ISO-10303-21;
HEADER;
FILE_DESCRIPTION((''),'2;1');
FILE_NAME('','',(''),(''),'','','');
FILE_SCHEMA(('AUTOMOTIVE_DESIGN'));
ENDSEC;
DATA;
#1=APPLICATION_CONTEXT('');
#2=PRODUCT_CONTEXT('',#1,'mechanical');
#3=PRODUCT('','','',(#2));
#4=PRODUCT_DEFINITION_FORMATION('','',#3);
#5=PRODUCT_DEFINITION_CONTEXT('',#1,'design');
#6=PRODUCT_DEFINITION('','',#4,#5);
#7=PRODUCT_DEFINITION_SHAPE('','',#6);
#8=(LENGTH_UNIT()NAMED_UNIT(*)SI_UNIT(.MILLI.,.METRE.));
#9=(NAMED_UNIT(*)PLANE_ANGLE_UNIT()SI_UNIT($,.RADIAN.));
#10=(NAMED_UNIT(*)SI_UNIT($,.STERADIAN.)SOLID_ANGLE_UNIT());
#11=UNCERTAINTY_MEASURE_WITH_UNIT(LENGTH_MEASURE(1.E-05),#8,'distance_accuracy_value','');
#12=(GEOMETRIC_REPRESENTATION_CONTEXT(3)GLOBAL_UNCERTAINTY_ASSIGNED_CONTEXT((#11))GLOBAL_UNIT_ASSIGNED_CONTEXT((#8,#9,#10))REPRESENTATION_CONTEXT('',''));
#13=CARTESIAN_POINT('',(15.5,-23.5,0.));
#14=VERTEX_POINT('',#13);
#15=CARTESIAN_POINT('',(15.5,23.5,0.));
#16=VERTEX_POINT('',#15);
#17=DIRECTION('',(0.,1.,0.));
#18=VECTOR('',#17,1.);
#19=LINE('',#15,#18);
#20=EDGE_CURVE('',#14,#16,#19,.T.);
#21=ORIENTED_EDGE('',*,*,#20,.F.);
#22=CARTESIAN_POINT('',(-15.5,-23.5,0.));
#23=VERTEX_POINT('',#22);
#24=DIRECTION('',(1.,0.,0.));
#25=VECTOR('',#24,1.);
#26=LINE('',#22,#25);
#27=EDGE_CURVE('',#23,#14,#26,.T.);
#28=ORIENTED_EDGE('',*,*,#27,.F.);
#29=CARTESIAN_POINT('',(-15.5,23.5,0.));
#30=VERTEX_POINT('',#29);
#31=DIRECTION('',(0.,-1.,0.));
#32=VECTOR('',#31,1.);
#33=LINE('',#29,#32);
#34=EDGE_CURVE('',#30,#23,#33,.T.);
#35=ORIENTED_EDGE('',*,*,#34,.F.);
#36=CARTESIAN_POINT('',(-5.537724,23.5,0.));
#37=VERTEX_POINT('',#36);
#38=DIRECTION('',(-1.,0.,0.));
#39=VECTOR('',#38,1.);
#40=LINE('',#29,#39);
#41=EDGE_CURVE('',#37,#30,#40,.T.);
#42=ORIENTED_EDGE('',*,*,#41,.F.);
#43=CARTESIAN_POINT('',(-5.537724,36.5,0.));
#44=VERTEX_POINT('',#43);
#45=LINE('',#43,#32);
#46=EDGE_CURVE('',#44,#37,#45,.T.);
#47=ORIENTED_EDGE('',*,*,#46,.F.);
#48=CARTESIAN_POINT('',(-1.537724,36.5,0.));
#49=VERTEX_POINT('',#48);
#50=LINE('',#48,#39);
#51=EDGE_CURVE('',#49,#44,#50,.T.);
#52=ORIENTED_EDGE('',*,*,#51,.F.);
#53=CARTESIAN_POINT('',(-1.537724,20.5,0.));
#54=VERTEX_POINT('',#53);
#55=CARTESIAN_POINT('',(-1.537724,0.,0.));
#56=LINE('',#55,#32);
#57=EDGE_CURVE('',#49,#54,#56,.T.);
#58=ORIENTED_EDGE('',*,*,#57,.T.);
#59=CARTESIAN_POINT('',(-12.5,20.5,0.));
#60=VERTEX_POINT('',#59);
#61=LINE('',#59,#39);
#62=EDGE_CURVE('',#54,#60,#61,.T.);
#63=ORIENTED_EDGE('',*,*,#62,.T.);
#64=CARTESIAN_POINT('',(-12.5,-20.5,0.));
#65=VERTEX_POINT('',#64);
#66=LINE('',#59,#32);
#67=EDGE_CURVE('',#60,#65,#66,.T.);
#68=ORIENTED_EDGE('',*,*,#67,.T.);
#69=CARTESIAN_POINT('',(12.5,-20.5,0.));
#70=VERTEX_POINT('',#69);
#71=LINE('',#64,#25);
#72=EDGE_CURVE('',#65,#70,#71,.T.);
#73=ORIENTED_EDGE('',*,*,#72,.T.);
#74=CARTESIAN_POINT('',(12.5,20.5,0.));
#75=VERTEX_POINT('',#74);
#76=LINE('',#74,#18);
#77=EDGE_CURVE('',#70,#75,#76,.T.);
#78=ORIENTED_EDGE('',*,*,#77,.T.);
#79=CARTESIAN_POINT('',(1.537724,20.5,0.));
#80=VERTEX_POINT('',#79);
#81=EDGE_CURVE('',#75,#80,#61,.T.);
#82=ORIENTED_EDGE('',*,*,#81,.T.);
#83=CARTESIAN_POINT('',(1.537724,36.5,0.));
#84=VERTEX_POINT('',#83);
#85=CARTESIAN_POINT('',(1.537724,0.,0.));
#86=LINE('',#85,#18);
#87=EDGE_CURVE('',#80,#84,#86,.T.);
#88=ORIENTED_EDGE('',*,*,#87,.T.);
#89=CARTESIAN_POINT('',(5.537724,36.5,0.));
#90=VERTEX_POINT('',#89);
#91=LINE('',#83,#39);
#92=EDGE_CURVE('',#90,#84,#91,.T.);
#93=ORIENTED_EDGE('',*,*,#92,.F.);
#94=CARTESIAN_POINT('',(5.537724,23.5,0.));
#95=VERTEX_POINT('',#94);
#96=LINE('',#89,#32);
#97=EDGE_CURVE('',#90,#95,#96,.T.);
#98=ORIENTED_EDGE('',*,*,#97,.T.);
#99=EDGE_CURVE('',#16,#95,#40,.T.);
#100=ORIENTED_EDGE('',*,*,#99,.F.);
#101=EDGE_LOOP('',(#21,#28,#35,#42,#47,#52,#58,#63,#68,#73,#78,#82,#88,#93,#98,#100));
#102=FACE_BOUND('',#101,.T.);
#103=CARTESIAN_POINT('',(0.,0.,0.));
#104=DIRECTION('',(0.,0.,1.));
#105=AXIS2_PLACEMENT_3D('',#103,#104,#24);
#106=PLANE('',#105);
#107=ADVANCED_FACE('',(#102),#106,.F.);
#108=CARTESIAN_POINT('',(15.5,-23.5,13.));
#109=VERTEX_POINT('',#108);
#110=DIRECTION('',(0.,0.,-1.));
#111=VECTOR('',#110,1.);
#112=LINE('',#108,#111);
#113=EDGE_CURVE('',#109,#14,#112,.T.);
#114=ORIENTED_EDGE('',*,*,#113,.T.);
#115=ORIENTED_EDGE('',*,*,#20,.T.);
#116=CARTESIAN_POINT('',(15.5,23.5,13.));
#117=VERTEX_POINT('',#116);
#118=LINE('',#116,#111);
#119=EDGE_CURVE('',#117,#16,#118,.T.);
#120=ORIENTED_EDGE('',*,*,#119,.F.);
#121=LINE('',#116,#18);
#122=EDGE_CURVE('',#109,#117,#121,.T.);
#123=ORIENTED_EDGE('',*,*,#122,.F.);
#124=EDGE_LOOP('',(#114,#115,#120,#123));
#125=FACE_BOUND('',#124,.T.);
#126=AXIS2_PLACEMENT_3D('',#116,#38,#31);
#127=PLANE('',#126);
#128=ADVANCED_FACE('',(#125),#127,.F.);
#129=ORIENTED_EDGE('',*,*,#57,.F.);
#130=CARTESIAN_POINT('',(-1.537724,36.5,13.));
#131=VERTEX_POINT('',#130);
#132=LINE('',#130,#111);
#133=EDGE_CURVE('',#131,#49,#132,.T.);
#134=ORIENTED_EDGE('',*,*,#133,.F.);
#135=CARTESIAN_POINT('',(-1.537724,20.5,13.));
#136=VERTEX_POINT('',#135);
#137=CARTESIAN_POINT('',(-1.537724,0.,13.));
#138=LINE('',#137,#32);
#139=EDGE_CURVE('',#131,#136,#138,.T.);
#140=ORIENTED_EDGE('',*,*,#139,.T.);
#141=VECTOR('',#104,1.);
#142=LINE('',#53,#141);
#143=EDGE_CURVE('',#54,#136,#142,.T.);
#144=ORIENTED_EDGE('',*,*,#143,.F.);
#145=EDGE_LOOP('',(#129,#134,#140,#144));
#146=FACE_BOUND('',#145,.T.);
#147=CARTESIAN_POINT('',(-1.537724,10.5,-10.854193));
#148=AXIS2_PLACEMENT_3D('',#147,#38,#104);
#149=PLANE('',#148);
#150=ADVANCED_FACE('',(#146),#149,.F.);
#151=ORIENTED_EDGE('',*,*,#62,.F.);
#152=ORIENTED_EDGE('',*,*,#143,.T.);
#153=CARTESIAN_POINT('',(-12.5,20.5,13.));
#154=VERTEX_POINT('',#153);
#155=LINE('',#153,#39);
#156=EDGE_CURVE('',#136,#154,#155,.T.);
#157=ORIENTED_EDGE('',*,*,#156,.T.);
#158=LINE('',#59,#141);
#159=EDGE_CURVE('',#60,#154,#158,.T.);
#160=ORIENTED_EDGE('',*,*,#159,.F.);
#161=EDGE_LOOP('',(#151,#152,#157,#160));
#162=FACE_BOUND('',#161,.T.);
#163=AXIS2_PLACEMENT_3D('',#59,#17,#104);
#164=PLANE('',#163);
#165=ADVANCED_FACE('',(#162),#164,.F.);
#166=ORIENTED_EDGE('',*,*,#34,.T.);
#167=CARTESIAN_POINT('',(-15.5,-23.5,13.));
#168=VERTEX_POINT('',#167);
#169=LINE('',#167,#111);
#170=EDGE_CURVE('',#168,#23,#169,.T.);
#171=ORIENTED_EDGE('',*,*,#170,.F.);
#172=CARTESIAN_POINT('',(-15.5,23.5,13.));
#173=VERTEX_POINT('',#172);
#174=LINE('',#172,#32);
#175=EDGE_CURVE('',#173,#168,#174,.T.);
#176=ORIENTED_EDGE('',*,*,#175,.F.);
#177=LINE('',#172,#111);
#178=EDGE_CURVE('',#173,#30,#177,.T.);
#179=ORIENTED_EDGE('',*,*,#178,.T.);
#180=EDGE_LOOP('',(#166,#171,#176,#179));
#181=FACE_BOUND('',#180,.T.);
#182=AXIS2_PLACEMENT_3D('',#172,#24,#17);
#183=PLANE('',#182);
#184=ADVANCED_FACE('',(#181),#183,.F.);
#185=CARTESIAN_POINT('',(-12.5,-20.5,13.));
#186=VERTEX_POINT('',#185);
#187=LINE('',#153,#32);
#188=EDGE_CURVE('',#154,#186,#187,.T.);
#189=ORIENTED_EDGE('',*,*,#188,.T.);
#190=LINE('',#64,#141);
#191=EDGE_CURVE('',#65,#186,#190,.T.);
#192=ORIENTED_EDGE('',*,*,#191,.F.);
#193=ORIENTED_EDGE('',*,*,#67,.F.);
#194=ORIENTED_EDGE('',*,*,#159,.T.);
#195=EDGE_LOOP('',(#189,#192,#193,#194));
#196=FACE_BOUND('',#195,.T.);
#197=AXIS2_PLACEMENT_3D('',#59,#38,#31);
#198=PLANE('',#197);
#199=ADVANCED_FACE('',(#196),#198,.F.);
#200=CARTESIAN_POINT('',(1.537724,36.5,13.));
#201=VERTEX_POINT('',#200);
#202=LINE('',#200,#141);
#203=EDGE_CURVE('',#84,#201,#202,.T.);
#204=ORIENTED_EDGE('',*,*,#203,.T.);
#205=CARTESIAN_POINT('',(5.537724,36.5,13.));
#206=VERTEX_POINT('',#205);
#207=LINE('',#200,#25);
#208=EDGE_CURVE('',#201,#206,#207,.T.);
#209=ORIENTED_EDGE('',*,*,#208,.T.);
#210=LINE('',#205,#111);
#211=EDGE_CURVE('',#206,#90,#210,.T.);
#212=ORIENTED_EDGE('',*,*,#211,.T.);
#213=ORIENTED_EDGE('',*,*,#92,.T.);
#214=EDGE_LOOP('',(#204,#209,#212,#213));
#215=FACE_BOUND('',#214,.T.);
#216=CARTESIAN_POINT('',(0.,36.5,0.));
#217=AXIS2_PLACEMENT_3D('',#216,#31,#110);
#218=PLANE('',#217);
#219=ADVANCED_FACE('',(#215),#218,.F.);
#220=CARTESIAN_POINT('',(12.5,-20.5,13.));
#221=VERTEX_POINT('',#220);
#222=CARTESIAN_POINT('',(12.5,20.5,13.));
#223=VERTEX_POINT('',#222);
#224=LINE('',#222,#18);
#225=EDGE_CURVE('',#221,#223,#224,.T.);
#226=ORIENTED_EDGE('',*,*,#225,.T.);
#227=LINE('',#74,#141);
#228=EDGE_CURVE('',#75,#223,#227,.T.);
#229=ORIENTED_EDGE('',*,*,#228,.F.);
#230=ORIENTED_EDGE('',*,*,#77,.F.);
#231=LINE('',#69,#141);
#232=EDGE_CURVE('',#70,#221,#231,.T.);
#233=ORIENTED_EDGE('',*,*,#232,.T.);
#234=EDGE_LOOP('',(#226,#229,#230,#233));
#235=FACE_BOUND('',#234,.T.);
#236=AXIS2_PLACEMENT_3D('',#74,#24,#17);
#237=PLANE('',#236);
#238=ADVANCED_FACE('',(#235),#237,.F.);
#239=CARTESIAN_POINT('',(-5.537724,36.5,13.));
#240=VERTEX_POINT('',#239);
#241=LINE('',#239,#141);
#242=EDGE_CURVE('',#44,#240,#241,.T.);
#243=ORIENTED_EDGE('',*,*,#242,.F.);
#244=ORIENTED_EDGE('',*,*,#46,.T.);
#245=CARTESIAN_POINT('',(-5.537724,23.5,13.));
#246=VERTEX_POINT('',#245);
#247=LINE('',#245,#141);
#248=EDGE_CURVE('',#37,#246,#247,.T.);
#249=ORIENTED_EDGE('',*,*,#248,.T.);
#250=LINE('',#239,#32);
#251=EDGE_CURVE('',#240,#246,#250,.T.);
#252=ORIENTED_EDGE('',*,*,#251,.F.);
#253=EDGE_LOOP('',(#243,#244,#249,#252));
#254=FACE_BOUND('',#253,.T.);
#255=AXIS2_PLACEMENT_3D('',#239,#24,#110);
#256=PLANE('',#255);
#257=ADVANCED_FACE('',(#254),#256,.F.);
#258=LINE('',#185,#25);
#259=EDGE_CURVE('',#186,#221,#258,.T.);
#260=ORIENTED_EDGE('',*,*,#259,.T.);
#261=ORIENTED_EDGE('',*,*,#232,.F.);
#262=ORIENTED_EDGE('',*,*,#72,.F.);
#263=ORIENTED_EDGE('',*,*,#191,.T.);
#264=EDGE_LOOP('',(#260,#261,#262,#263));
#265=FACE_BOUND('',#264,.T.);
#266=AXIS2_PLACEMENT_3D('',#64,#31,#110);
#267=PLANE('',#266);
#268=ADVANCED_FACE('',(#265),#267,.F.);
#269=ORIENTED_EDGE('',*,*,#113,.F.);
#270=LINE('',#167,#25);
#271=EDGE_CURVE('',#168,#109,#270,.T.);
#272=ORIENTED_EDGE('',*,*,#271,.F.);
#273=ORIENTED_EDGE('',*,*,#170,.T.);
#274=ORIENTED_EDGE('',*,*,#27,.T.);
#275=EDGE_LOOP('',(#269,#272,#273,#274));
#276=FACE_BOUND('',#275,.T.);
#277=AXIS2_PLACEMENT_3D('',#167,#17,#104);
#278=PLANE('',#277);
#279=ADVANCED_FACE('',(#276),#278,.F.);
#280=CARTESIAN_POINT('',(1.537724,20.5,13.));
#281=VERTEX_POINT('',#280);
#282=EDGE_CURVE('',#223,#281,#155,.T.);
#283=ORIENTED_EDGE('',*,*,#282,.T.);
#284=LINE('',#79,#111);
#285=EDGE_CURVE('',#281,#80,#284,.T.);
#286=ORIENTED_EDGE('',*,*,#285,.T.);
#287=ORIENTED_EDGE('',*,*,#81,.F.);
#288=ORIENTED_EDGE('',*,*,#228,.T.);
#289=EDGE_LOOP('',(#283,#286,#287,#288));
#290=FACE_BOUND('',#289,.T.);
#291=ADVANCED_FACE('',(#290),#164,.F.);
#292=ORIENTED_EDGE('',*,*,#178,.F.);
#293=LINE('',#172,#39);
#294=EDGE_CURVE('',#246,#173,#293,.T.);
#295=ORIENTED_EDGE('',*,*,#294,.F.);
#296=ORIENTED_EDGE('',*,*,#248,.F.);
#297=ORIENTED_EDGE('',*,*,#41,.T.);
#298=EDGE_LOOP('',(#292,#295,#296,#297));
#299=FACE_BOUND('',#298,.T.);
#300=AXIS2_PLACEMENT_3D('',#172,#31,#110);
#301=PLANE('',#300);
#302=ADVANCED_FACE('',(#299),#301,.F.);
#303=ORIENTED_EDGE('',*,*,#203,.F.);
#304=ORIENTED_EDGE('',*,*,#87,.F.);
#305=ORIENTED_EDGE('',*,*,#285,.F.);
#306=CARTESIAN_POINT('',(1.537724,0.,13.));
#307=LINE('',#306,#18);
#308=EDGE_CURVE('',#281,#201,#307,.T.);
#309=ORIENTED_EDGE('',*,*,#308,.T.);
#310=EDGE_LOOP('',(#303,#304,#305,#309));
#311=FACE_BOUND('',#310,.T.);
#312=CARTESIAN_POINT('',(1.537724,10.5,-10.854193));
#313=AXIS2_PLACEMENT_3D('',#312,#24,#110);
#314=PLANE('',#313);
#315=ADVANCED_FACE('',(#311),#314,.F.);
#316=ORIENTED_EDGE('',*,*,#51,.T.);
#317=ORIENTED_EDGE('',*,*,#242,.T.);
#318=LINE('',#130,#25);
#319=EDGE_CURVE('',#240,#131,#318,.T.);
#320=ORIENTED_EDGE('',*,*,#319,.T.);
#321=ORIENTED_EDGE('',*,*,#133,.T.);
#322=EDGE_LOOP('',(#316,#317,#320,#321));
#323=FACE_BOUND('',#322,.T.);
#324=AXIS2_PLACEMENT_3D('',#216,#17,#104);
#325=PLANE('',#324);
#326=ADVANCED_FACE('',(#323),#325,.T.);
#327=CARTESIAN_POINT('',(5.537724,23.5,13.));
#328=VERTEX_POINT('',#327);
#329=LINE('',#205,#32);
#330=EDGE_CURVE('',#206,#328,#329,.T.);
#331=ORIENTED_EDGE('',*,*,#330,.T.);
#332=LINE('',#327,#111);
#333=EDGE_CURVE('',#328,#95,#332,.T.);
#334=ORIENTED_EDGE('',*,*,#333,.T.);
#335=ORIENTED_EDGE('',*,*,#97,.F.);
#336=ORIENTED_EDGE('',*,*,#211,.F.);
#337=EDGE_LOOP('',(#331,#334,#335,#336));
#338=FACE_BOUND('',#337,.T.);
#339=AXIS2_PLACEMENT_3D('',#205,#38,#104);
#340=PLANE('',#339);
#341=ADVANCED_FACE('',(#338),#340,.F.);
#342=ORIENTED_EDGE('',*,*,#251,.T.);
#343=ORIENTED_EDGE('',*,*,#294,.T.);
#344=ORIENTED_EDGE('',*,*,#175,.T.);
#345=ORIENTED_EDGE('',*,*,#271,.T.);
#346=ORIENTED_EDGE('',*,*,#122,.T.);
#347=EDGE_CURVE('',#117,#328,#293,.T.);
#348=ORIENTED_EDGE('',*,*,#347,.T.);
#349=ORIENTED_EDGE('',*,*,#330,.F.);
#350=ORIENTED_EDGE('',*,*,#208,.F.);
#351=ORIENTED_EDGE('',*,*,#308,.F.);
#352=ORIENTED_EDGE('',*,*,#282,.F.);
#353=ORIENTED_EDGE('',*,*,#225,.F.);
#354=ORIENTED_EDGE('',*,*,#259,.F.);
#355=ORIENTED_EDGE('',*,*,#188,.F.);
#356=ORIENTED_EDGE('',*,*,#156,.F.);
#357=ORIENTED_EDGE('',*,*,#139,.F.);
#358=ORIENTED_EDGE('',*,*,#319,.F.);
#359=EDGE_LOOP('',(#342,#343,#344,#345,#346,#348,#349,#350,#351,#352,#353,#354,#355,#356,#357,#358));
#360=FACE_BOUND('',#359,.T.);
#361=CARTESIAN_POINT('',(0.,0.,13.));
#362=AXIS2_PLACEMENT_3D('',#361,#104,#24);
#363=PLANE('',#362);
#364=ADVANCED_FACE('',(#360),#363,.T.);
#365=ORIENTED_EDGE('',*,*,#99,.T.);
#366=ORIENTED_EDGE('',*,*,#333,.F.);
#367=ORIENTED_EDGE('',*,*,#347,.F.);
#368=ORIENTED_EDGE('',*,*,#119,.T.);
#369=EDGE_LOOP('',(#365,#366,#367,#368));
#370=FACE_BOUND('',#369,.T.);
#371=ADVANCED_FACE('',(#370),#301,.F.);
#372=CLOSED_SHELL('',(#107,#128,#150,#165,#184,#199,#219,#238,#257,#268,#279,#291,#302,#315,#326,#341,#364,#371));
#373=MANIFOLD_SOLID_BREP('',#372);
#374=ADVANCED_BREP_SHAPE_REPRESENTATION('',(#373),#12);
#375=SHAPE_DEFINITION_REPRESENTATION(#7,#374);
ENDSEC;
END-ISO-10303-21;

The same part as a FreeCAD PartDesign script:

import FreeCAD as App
import Part
import Sketcher

V = App.Vector
Q = App.Units.Quantity


def add_polygon(sketch, points):
    """Adds a closed chain of lines whose ends are joined by coincident constraints."""
    first, n = sketch.GeometryCount, len(points)
    for a, b in zip(points, points[1:] + points[:1]):
        sketch.addGeometry(Part.LineSegment(App.Vector(*a, 0), App.Vector(*b, 0)), False)
    for i in range(n):
        sketch.addConstraint(Sketcher.Constraint("Coincident", first + i, 2, first + (i + 1) % n, 1))

doc = App.newDocument("Part")
body = doc.addObject("PartDesign::Body", "Body")

# Sketch on XY plane
sketch1 = body.newObject("Sketcher::SketchObject", "Sketch")
sketch1.AttachmentSupport = (doc.getObject("XY_Plane"), [""])
sketch1.MapMode = "FlatFace"
add_polygon(sketch1, [(-16, 24), (-16, -24), (16, -24), (16, 24)])  # lines 0-3
sketch1.addConstraint([
    Sketcher.Constraint("Vertical", 0),
    Sketcher.Constraint("Horizontal", 1),
    Sketcher.Constraint("Vertical", 2),
    Sketcher.Constraint("Horizontal", 3),
    Sketcher.Constraint("Symmetric", 0, 2, 2, 2, -1, 1),
    Sketcher.Constraint("DistanceX", 1, 1, 1, 2, Q("31 mm")),
    Sketcher.Constraint("DistanceY", 0, 2, 0, 1, Q("47 mm")),
])
pad1 = body.newObject("PartDesign::Pad", "Pad")
pad1.Profile = sketch1
pad1.Length = 13

# Sketch on XY plane
sketch2 = body.newObject("Sketcher::SketchObject", "Sketch001")
sketch2.AttachmentSupport = (doc.getObject("XY_Plane"), [""])
sketch2.MapMode = "FlatFace"
sketch2.AttachmentOffset = App.Placement(V(0, 0, 13), App.Rotation())
add_polygon(sketch2, [(-12, 20), (-12, -20), (12, -20), (12, 20)])  # lines 0-3
sketch2.addConstraint([
    Sketcher.Constraint("Vertical", 0),
    Sketcher.Constraint("Horizontal", 1),
    Sketcher.Constraint("Vertical", 2),
    Sketcher.Constraint("Horizontal", 3),
    Sketcher.Constraint("Symmetric", 0, 2, 2, 2, -1, 1),
    Sketcher.Constraint("DistanceX", 1, 1, 1, 2, Q("25 mm")),
    Sketcher.Constraint("DistanceY", 0, 2, 0, 1, Q("41 mm")),
])
pocket1 = body.newObject("PartDesign::Pocket", "Pocket")
pocket1.Profile = sketch2
pocket1.Length = 13

# Sketch on XZ plane
sketch3 = body.newObject("Sketcher::SketchObject", "Sketch002")
sketch3.AttachmentSupport = (doc.getObject("XZ_Plane"), [""])
sketch3.MapMode = "FlatFace"
sketch3.AttachmentOffset = App.Placement(V(0, 0, -23.5), App.Rotation())
add_polygon(sketch3, [(-1.5, -10.9), (-1.5, 22.8), (1.5, 22.8), (1.5, -10.9)])  # lines 0-3
sketch3.addConstraint([
    Sketcher.Constraint("Vertical", 0),
    Sketcher.Constraint("Horizontal", 1),
    Sketcher.Constraint("Vertical", 2),
    Sketcher.Constraint("Horizontal", 3),
    Sketcher.Constraint("DistanceX", 1, 1, 1, 2, Q("3.075449 mm")),
    Sketcher.Constraint("DistanceY", 0, 1, 0, 2, Q("33.686173 mm")),
    Sketcher.Constraint("DistanceY", -1, 1, 0, 2, Q("22.831981 mm")),
    Sketcher.Constraint("DistanceX", 0, 2, -1, 1, Q("1.537724 mm")),
])
pocket2 = body.newObject("PartDesign::Pocket", "Pocket001")
pocket2.Profile = sketch3
pocket2.Length = 13
pocket2.Reversed = True

# Sketch on XZ plane
sketch4 = body.newObject("Sketcher::SketchObject", "Sketch003")
sketch4.AttachmentSupport = (doc.getObject("XZ_Plane"), [""])
sketch4.MapMode = "FlatFace"
sketch4.AttachmentOffset = App.Placement(V(0, 0, -23.5), App.Rotation())
add_polygon(sketch4, [(1.5, 0), (1.5, 13), (5.5, 13), (5.5, 0)])  # lines 0-3
add_polygon(sketch4, [(-5.5, 0), (-5.5, 13), (-1.5, 13), (-1.5, 0)])  # lines 4-7
sketch4.addConstraint([
    Sketcher.Constraint("Vertical", 0),
    Sketcher.Constraint("Horizontal", 1),
    Sketcher.Constraint("Vertical", 2),
    Sketcher.Constraint("Horizontal", 3),
    Sketcher.Constraint("Vertical", 4),
    Sketcher.Constraint("Horizontal", 5),
    Sketcher.Constraint("Vertical", 6),
    Sketcher.Constraint("Horizontal", 7),
    Sketcher.Constraint("Symmetric", 3, 2, 6, 2, -1, 1),
    Sketcher.Constraint("Symmetric", 1, 2, 4, 2, -2),
    Sketcher.Constraint("PointOnObject", 2, 2, -1),
    Sketcher.Constraint("DistanceX", 1, 1, 1, 2, Q("4 mm")),
    Sketcher.Constraint("DistanceY", 0, 1, 0, 2, Q("13 mm")),
    Sketcher.Constraint("DistanceX", 4, 2, 0, 2, Q("7.075449 mm")),
])
pad2 = body.newObject("PartDesign::Pad", "Pad001")
pad2.Profile = sketch4
pad2.Length = 13
pad2.Reversed = True

doc.recompute()
